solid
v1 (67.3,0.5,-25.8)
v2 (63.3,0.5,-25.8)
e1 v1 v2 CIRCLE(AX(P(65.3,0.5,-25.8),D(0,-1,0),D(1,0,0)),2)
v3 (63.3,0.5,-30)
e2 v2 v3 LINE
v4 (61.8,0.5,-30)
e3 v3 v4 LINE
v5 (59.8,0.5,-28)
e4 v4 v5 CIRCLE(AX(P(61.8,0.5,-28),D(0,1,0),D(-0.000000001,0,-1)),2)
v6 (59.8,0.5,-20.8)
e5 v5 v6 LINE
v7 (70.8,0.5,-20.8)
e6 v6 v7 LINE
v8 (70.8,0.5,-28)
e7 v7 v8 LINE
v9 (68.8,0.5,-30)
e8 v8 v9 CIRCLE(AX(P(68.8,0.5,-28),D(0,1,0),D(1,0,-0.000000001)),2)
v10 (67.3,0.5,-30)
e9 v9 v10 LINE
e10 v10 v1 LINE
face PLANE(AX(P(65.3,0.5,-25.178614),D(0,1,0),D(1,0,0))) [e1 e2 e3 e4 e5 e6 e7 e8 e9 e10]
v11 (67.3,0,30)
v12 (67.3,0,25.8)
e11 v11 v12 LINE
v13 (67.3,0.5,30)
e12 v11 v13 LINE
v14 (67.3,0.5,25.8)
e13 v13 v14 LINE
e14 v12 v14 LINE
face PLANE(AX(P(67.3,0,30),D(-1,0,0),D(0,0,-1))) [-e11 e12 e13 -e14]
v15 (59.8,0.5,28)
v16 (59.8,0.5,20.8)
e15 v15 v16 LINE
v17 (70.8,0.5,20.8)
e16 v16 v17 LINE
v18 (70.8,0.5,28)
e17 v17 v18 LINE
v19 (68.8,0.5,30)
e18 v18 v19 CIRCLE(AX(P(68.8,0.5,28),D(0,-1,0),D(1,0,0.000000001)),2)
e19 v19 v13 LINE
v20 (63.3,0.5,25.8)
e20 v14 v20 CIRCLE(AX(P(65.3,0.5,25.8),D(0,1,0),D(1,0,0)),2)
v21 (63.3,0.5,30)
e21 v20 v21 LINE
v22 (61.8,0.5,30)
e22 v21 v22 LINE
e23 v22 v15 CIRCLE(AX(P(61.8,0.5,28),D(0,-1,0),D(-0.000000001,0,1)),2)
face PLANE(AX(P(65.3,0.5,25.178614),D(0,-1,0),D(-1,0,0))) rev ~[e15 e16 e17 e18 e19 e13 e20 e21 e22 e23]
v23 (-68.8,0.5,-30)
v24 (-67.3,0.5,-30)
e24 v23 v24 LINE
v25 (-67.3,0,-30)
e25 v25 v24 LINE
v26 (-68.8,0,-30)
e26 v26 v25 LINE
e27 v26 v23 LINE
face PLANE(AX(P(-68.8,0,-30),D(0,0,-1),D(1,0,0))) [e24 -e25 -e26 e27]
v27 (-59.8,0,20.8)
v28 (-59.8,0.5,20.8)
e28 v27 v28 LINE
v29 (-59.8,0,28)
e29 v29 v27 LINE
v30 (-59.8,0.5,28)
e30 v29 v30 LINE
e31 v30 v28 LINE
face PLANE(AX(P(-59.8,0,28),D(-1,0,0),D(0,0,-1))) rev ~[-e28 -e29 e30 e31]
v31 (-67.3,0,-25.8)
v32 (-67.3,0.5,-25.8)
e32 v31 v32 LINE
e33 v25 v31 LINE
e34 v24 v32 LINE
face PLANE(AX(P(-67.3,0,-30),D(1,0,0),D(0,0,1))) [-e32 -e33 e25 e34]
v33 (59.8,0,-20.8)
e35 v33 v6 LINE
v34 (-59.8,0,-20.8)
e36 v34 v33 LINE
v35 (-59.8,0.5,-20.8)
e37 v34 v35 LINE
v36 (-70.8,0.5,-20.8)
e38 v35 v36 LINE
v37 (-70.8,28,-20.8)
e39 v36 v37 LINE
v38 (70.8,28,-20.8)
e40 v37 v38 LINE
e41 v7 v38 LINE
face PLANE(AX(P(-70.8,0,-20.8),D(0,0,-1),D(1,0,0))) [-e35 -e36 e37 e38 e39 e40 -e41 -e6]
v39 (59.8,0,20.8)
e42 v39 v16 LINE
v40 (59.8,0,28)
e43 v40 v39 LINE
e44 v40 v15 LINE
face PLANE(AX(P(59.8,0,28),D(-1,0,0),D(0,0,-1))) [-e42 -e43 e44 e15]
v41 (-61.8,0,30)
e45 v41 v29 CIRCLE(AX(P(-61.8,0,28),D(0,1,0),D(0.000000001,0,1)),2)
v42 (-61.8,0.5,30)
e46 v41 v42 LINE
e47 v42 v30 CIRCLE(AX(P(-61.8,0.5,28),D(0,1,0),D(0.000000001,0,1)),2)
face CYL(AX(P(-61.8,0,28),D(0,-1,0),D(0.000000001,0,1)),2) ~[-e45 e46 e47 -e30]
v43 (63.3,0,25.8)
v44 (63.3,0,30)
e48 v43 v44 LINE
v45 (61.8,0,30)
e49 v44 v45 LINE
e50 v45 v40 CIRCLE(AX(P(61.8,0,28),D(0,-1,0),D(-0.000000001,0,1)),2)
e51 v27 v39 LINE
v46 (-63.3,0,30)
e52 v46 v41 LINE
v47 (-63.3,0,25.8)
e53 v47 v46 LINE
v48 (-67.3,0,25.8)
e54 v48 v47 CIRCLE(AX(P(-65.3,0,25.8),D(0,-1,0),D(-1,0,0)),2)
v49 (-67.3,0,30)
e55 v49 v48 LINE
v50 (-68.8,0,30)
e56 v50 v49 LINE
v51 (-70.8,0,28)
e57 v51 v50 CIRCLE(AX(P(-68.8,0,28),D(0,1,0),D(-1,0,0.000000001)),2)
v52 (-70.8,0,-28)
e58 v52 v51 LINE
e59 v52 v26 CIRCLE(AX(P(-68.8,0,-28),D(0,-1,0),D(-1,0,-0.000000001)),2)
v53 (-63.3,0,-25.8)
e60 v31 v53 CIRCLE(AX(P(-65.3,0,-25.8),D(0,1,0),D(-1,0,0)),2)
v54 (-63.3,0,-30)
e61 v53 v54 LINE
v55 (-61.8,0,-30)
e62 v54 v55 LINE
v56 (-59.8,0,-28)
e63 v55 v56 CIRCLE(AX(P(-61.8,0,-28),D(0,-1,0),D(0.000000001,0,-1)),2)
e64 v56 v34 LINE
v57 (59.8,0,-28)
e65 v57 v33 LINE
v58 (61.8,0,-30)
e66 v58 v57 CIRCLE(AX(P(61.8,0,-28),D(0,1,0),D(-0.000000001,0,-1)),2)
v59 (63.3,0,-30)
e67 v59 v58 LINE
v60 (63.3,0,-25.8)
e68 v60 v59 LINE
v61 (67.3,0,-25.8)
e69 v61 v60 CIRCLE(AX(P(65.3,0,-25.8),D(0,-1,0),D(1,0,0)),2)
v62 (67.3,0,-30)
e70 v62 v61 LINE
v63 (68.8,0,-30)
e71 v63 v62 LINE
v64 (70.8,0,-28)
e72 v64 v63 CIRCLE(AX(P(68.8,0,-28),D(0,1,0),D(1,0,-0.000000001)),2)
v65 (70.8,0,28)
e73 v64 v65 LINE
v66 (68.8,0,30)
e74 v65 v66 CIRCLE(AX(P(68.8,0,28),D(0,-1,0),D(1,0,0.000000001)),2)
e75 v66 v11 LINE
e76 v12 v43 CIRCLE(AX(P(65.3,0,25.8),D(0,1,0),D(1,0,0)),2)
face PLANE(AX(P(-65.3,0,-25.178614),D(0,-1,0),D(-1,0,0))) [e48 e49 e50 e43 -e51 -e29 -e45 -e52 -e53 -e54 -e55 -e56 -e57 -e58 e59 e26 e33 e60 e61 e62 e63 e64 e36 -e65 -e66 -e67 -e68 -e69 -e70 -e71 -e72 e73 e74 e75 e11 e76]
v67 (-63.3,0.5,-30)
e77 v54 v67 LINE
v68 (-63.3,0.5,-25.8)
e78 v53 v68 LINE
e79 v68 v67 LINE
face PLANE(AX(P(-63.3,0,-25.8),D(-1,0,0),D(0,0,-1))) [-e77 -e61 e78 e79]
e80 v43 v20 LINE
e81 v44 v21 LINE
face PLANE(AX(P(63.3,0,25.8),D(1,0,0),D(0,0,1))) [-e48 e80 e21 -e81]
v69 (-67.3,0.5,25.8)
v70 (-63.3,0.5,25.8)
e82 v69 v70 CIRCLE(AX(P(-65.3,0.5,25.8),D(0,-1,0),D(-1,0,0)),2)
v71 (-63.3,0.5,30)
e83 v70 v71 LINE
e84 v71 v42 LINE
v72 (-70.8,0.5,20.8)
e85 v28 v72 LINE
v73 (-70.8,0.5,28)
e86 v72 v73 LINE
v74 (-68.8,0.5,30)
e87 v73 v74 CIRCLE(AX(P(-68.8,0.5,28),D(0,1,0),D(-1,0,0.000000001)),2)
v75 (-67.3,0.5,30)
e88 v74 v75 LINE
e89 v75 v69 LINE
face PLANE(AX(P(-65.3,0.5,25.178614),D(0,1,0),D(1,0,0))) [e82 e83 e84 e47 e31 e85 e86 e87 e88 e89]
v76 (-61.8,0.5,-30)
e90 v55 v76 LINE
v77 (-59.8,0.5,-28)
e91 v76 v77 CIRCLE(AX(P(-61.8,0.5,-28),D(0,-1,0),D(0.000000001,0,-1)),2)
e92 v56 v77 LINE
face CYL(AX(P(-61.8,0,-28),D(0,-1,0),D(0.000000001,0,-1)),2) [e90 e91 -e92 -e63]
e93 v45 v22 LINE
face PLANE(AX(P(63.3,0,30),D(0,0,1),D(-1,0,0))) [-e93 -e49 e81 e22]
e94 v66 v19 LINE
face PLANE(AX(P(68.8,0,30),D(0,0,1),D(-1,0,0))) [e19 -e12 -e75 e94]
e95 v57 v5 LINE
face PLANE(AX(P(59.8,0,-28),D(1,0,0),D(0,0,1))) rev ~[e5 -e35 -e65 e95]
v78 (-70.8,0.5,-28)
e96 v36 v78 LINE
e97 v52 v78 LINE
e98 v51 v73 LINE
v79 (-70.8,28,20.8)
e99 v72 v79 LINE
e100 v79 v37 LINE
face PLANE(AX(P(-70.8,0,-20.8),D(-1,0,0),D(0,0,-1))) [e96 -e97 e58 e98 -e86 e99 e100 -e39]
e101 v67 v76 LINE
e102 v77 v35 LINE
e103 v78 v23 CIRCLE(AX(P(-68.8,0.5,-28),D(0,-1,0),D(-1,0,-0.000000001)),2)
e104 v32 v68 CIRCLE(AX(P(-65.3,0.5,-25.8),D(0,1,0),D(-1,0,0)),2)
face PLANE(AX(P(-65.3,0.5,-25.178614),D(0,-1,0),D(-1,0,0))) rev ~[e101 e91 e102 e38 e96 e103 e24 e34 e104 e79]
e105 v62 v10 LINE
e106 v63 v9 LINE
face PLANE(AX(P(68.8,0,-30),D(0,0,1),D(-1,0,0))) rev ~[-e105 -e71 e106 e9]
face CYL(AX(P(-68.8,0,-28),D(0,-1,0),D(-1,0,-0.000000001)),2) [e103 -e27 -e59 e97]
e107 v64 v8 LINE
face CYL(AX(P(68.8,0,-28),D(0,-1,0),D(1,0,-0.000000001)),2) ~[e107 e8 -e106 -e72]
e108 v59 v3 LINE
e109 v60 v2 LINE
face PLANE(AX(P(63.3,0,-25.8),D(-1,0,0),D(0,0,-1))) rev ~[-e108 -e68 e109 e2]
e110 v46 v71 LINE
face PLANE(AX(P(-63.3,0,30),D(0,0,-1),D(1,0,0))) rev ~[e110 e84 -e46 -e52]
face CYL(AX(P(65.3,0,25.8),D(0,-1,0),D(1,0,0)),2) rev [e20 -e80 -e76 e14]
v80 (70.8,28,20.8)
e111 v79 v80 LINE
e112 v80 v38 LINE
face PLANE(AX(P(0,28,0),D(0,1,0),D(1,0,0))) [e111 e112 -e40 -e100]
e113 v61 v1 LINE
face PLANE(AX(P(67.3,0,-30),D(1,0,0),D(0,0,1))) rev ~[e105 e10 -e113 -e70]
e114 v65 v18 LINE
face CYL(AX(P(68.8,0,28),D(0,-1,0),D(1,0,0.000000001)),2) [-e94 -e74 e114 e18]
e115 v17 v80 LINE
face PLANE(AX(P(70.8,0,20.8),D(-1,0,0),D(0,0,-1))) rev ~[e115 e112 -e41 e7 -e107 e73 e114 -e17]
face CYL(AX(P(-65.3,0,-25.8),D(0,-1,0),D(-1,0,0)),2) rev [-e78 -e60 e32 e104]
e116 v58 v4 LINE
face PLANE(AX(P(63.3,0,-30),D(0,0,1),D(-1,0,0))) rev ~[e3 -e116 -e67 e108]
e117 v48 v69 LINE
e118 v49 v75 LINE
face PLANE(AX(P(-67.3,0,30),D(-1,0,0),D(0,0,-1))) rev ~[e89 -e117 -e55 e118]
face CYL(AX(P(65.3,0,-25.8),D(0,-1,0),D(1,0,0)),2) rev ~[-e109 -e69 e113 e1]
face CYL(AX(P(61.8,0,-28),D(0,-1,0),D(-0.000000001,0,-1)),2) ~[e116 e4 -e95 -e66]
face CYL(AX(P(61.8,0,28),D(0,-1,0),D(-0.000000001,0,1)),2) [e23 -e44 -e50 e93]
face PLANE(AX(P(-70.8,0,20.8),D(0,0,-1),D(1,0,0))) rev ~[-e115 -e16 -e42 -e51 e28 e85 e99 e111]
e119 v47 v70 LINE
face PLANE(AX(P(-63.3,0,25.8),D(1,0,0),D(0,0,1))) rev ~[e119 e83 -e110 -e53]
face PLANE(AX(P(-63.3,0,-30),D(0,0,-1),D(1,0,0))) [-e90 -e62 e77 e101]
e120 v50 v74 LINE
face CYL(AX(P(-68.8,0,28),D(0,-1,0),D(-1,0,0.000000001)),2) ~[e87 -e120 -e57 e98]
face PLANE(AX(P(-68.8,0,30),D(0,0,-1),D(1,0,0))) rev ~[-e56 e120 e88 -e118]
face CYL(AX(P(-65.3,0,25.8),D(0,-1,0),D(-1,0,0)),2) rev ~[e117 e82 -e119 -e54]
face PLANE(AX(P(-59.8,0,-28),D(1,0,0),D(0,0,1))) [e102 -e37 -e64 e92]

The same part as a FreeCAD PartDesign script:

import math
import FreeCAD as App
import Part
import Sketcher

V = App.Vector

doc = App.newDocument("Part")
body = doc.addObject("PartDesign::Body", "Body")

# Sketch on XZ plane
sketch1 = body.newObject("Sketcher::SketchObject", "Sketch")
sketch1.AttachmentSupport = (doc.getObject("XZ_Plane"), [""])
sketch1.MapMode = "FlatFace"
sketch1.addGeometry(Part.LineSegment(V(-71, -21, 0), V(-71, 21, 0)), False)
sketch1.addGeometry(Part.LineSegment(V(-71, 21, 0), V(71, 21, 0)), False)
sketch1.addGeometry(Part.LineSegment(V(71, 21, 0), V(71, -21, 0)), False)
sketch1.addGeometry(Part.LineSegment(V(71, -21, 0), V(-71, -21, 0)), False)
sketch1.addConstraint(Sketcher.Constraint("Coincident", 0, 2, 1, 1))
sketch1.addConstraint(Sketcher.Constraint("Coincident", 1, 2, 2, 1))
sketch1.addConstraint(Sketcher.Constraint("Coincident", 2, 2, 3, 1))
sketch1.addConstraint(Sketcher.Constraint("Coincident", 3, 2, 0, 1))
sketch1.addConstraint(Sketcher.Constraint("Vertical", 0))
sketch1.addConstraint(Sketcher.Constraint("Horizontal", 1))
sketch1.addConstraint(Sketcher.Constraint("Vertical", 2))
sketch1.addConstraint(Sketcher.Constraint("Horizontal", 3))
sketch1.addConstraint(Sketcher.Constraint("Symmetric", 0, 2, 2, 2, -1, 1))
sketch1.addConstraint(Sketcher.Constraint("DistanceX", 1, 1, 1, 2, 141.6))
sketch1.addConstraint(Sketcher.Constraint("DistanceY", 0, 1, 0, 2, 41.6))
pad1 = body.newObject("PartDesign::Pad", "Pad")
pad1.Profile = sketch1
pad1.Length = 28
pad1.Reversed = True

# Sketch on XZ plane
sketch2 = body.newObject("Sketcher::SketchObject", "Sketch001")
sketch2.AttachmentSupport = (doc.getObject("XZ_Plane"), [""])
sketch2.MapMode = "FlatFace"
sketch2.addGeometry(Part.LineSegment(V(-70.8, -28, 0), V(-70.8, -20.8, 0)), False)
sketch2.addGeometry(Part.LineSegment(V(-70.8, -20.8, 0), V(-59.8, -20.8, 0)), False)
sketch2.addGeometry(Part.LineSegment(V(-59.8, -20.8, 0), V(-59.8, -28, 0)), False)
sketch2.addGeometry(Part.ArcOfCircle(Part.Circle(V(-61.8, -28, 0), V(0, 0, 1), 2), math.radians(-90), math.radians(0)), False)
sketch2.addGeometry(Part.LineSegment(V(-61.8, -30, 0), V(-63.3, -30, 0)), False)
sketch2.addGeometry(Part.LineSegment(V(-63.3, -30, 0), V(-63.3, -25.8, 0)), False)
sketch2.addGeometry(Part.ArcOfCircle(Part.Circle(V(-65.3, -25.8, 0), V(0, 0, 1), 2), math.radians(0), math.radians(180)), False)
sketch2.addGeometry(Part.LineSegment(V(-67.3, -25.8, 0), V(-67.3, -30, 0)), False)
sketch2.addGeometry(Part.LineSegment(V(-67.3, -30, 0), V(-68.8, -30, 0)), False)
sketch2.addGeometry(Part.ArcOfCircle(Part.Circle(V(-68.8, -28, 0), V(0, 0, 1), 2), math.radians(-180), math.radians(-90)), False)
sketch2.addGeometry(Part.LineSegment(V(-63.3, 30, 0), V(-61.8, 30, 0)), False)
sketch2.addGeometry(Part.ArcOfCircle(Part.Circle(V(-61.8, 28, 0), V(0, 0, 1), 2), math.radians(0), math.radians(90)), False)
sketch2.addGeometry(Part.LineSegment(V(-59.8, 28, 0), V(-59.8, 20.8, 0)), False)
sketch2.addGeometry(Part.LineSegment(V(-59.8, 20.8, 0), V(-70.8, 20.8, 0)), False)
sketch2.addGeometry(Part.LineSegment(V(-70.8, 20.8, 0), V(-70.8, 28, 0)), False)
sketch2.addGeometry(Part.ArcOfCircle(Part.Circle(V(-68.8, 28, 0), V(0, 0, 1), 2), math.radians(90), math.radians(180)), False)
sketch2.addGeometry(Part.LineSegment(V(-68.8, 30, 0), V(-67.3, 30, 0)), False)
sketch2.addGeometry(Part.LineSegment(V(-67.3, 30, 0), V(-67.3, 25.8, 0)), False)
sketch2.addGeometry(Part.ArcOfCircle(Part.Circle(V(-65.3, 25.8, 0), V(0, 0, 1), 2), math.radians(180), math.radians(360)), False)
sketch2.addGeometry(Part.LineSegment(V(-63.3, 25.8, 0), V(-63.3, 30, 0)), False)
sketch2.addGeometry(Part.LineSegment(V(61.8, 30, 0), V(63.3, 30, 0)), False)
sketch2.addGeometry(Part.LineSegment(V(63.3, 30, 0), V(63.3, 25.8, 0)), False)
sketch2.addGeometry(Part.ArcOfCircle(Part.Circle(V(65.3, 25.8, 0), V(0, 0, 1), 2), math.radians(180), math.radians(360)), False)
sketch2.addGeometry(Part.LineSegment(V(67.3, 25.8, 0), V(67.3, 30, 0)), False)
sketch2.addGeometry(Part.LineSegment(V(67.3, 30, 0), V(68.8, 30, 0)), False)
sketch2.addGeometry(Part.ArcOfCircle(Part.Circle(V(68.8, 28, 0), V(0, 0, 1), 2), math.radians(0), math.radians(90)), False)
sketch2.addGeometry(Part.LineSegment(V(70.8, 28, 0), V(70.8, 20.8, 0)), False)
sketch2.addGeometry(Part.LineSegment(V(70.8, 20.8, 0), V(59.8, 20.8, 0)), False)
sketch2.addGeometry(Part.LineSegment(V(59.8, 20.8, 0), V(59.8, 28, 0)), False)
sketch2.addGeometry(Part.ArcOfCircle(Part.Circle(V(61.8, 28, 0), V(0, 0, 1), 2), math.radians(90), math.radians(180)), False)
sketch2.addGeometry(Part.LineSegment(V(63.3, -30, 0), V(61.8, -30, 0)), False)
sketch2.addGeometry(Part.ArcOfCircle(Part.Circle(V(61.8, -28, 0), V(0, 0, 1), 2), math.radians(-180), math.radians(-90)), False)
sketch2.addGeometry(Part.LineSegment(V(59.8, -28, 0), V(59.8, -20.8, 0)), False)
sketch2.addGeometry(Part.LineSegment(V(59.8, -20.8, 0), V(70.8, -20.8, 0)), False)
sketch2.addGeometry(Part.LineSegment(V(70.8, -20.8, 0), V(70.8, -28, 0)), False)
sketch2.addGeometry(Part.ArcOfCircle(Part.Circle(V(68.8, -28, 0), V(0, 0, 1), 2), math.radians(-90), math.radians(0)), False)
sketch2.addGeometry(Part.LineSegment(V(68.8, -30, 0), V(67.3, -30, 0)), False)
sketch2.addGeometry(Part.LineSegment(V(67.3, -30, 0), V(67.3, -25.8, 0)), False)
sketch2.addGeometry(Part.ArcOfCircle(Part.Circle(V(65.3, -25.8, 0), V(0, 0, 1), 2), math.radians(0), math.radians(180)), False)
sketch2.addGeometry(Part.LineSegment(V(63.3, -25.8, 0), V(63.3, -30, 0)), False)
sketch2.addConstraint(Sketcher.Constraint("Coincident", 0, 2, 1, 1))
sketch2.addConstraint(Sketcher.Constraint("Coincident", 1, 2, 2, 1))
sketch2.addConstraint(Sketcher.Constraint("Tangent", 2, 2, 3, 2))
sketch2.addConstraint(Sketcher.Constraint("Tangent", 3, 1, 4, 1))
sketch2.addConstraint(Sketcher.Constraint("Coincident", 4, 2, 5, 1))
sketch2.addConstraint(Sketcher.Constraint("Tangent", 5, 2, 6, 1))
sketch2.addConstraint(Sketcher.Constraint("Tangent", 6, 2, 7, 1))
sketch2.addConstraint(Sketcher.Constraint("Coincident", 7, 2, 8, 1))
sketch2.addConstraint(Sketcher.Constraint("Tangent", 8, 2, 9, 2))
sketch2.addConstraint(Sketcher.Constraint("Tangent", 9, 1, 0, 1))
sketch2.addConstraint(Sketcher.Constraint("Tangent", 10, 2, 11, 2))
sketch2.addConstraint(Sketcher.Constraint("Tangent", 11, 1, 12, 1))
sketch2.addConstraint(Sketcher.Constraint("Coincident", 12, 2, 13, 1))
sketch2.addConstraint(Sketcher.Constraint("Coincident", 13, 2, 14, 1))
sketch2.addConstraint(Sketcher.Constraint("Tangent", 14, 2, 15, 2))
sketch2.addConstraint(Sketcher.Constraint("Tangent", 15, 1, 16, 1))
sketch2.addConstraint(Sketcher.Constraint("Coincident", 16, 2, 17, 1))
sketch2.addConstraint(Sketcher.Constraint("Tangent", 17, 2, 18, 1))
sketch2.addConstraint(Sketcher.Constraint("Tangent", 18, 2, 19, 1))
sketch2.addConstraint(Sketcher.Constraint("Coincident", 19, 2, 10, 1))
sketch2.addConstraint(Sketcher.Constraint("Coincident", 20, 2, 21, 1))
sketch2.addConstraint(Sketcher.Constraint("Tangent", 21, 2, 22, 1))
sketch2.addConstraint(Sketcher.Constraint("Tangent", 22, 2, 23, 1))
sketch2.addConstraint(Sketcher.Constraint("Coincident", 23, 2, 24, 1))
sketch2.addConstraint(Sketcher.Constraint("Tangent", 24, 2, 25, 2))
sketch2.addConstraint(Sketcher.Constraint("Tangent", 25, 1, 26, 1))
sketch2.addConstraint(Sketcher.Constraint("Coincident", 26, 2, 27, 1))
sketch2.addConstraint(Sketcher.Constraint("Coincident", 27, 2, 28, 1))
sketch2.addConstraint(Sketcher.Constraint("Tangent", 28, 2, 29, 2))
sketch2.addConstraint(Sketcher.Constraint("Tangent", 29, 1, 20, 1))
sketch2.addConstraint(Sketcher.Constraint("Tangent", 30, 2, 31, 2))
sketch2.addConstraint(Sketcher.Constraint("Tangent", 31, 1, 32, 1))
sketch2.addConstraint(Sketcher.Constraint("Coincident", 32, 2, 33, 1))
sketch2.addConstraint(Sketcher.Constraint("Coincident", 33, 2, 34, 1))
sketch2.addConstraint(Sketcher.Constraint("Tangent", 34, 2, 35, 2))
sketch2.addConstraint(Sketcher.Constraint("Tangent", 35, 1, 36, 1))
sketch2.addConstraint(Sketcher.Constraint("Coincident", 36, 2, 37, 1))
sketch2.addConstraint(Sketcher.Constraint("Tangent", 37, 2, 38, 1))
sketch2.addConstraint(Sketcher.Constraint("Tangent", 38, 2, 39, 1))
sketch2.addConstraint(Sketcher.Constraint("Coincident", 39, 2, 30, 1))
sketch2.addConstraint(Sketcher.Constraint("Vertical", 0))
sketch2.addConstraint(Sketcher.Constraint("Horizontal", 1))
sketch2.addConstraint(Sketcher.Constraint("Vertical", 2))
sketch2.addConstraint(Sketcher.Constraint("Horizontal", 4))
sketch2.addConstraint(Sketcher.Constraint("Vertical", 5))
sketch2.addConstraint(Sketcher.Constraint("Vertical", 7))
sketch2.addConstraint(Sketcher.Constraint("Horizontal", 8))
sketch2.addConstraint(Sketcher.Constraint("Horizontal", 10))
sketch2.addConstraint(Sketcher.Constraint("Vertical", 12))
sketch2.addConstraint(Sketcher.Constraint("Horizontal", 13))
sketch2.addConstraint(Sketcher.Constraint("Vertical", 14))
sketch2.addConstraint(Sketcher.Constraint("Horizontal", 16))
sketch2.addConstraint(Sketcher.Constraint("Vertical", 17))
sketch2.addConstraint(Sketcher.Constraint("Vertical", 19))
sketch2.addConstraint(Sketcher.Constraint("Horizontal", 20))
sketch2.addConstraint(Sketcher.Constraint("Vertical", 21))
sketch2.addConstraint(Sketcher.Constraint("Vertical", 23))
sketch2.addConstraint(Sketcher.Constraint("Horizontal", 24))
sketch2.addConstraint(Sketcher.Constraint("Vertical", 26))
sketch2.addConstraint(Sketcher.Constraint("Horizontal", 27))
sketch2.addConstraint(Sketcher.Constraint("Vertical", 28))
sketch2.addConstraint(Sketcher.Constraint("Horizontal", 30))
sketch2.addConstraint(Sketcher.Constraint("Vertical", 32))
sketch2.addConstraint(Sketcher.Constraint("Horizontal", 33))
sketch2.addConstraint(Sketcher.Constraint("Vertical", 34))
sketch2.addConstraint(Sketcher.Constraint("Horizontal", 36))
sketch2.addConstraint(Sketcher.Constraint("Vertical", 37))
sketch2.addConstraint(Sketcher.Constraint("Vertical", 39))
sketch2.addConstraint(Sketcher.Constraint("Equal", 3, 6))
sketch2.addConstraint(Sketcher.Constraint("Equal", 6, 9))
sketch2.addConstraint(Sketcher.Constraint("Equal", 9, 11))
sketch2.addConstraint(Sketcher.Constraint("Equal", 11, 15))
sketch2.addConstraint(Sketcher.Constraint("Equal", 15, 18))
sketch2.addConstraint(Sketcher.Constraint("Equal", 18, 22))
sketch2.addConstraint(Sketcher.Constraint("Equal", 22, 25))
sketch2.addConstraint(Sketcher.Constraint("Equal", 25, 29))
sketch2.addConstraint(Sketcher.Constraint("Equal", 29, 31))
sketch2.addConstraint(Sketcher.Constraint("Equal", 31, 35))
sketch2.addConstraint(Sketcher.Constraint("Equal", 35, 38))
sketch2.addConstraint(Sketcher.Constraint("Symmetric", 6, 3, 22, 3, -1, 1))
sketch2.addConstraint(Sketcher.Constraint("Symmetric", 9, 3, 25, 3, -1, 1))
sketch2.addConstraint(Sketcher.Constraint("Symmetric", 3, 3, 29, 3, -1, 1))
sketch2.addConstraint(Sketcher.Constraint("Symmetric", 11, 3, 31, 3, -1, 1))
sketch2.addConstraint(Sketcher.Constraint("Symmetric", 15, 3, 35, 3, -1, 1))
sketch2.addConstraint(Sketcher.Constraint("Symmetric", 18, 3, 38, 3, -1, 1))
sketch2.addConstraint(Sketcher.Constraint("Symmetric", 18, 3, 22, 3, -2))
sketch2.addConstraint(Sketcher.Constraint("Symmetric", 15, 3, 25, 3, -2))
sketch2.addConstraint(Sketcher.Constraint("Symmetric", 11, 3, 29, 3, -2))
sketch2.addConstraint(Sketcher.Constraint("Horizontal", 3, 3, 9, 3))
sketch2.addConstraint(Sketcher.Constraint("Horizontal", 13, 2, 26, 2))
sketch2.addConstraint(Sketcher.Constraint("Horizontal", 1, 2, 32, 2))
sketch2.addConstraint(Sketcher.Constraint("Equal", 4, 8))
sketch2.addConstraint(Sketcher.Constraint("Equal", 2, 12))
sketch2.addConstraint(Sketcher.Constraint("Radius", 3, 2.0))
sketch2.addConstraint(Sketcher.Constraint("DistanceX", 1, 1, 1, 2, 11.0))
sketch2.addConstraint(Sketcher.Constraint("DistanceY", 0, 1, 0, 2, 7.2))
sketch2.addConstraint(Sketcher.Constraint("DistanceY", 5, 1, 5, 2, 4.2))
sketch2.addConstraint(Sketcher.Constraint("DistanceY", 3, 3, -1, 1, 28.0))
sketch2.addConstraint(Sketcher.Constraint("DistanceX", 3, 3, -1, 1, 61.8))
pad2 = body.newObject("PartDesign::Pad", "Pad001")
pad2.Profile = sketch2
pad2.Length = 0.5
pad2.Reversed = True

doc.recompute()
